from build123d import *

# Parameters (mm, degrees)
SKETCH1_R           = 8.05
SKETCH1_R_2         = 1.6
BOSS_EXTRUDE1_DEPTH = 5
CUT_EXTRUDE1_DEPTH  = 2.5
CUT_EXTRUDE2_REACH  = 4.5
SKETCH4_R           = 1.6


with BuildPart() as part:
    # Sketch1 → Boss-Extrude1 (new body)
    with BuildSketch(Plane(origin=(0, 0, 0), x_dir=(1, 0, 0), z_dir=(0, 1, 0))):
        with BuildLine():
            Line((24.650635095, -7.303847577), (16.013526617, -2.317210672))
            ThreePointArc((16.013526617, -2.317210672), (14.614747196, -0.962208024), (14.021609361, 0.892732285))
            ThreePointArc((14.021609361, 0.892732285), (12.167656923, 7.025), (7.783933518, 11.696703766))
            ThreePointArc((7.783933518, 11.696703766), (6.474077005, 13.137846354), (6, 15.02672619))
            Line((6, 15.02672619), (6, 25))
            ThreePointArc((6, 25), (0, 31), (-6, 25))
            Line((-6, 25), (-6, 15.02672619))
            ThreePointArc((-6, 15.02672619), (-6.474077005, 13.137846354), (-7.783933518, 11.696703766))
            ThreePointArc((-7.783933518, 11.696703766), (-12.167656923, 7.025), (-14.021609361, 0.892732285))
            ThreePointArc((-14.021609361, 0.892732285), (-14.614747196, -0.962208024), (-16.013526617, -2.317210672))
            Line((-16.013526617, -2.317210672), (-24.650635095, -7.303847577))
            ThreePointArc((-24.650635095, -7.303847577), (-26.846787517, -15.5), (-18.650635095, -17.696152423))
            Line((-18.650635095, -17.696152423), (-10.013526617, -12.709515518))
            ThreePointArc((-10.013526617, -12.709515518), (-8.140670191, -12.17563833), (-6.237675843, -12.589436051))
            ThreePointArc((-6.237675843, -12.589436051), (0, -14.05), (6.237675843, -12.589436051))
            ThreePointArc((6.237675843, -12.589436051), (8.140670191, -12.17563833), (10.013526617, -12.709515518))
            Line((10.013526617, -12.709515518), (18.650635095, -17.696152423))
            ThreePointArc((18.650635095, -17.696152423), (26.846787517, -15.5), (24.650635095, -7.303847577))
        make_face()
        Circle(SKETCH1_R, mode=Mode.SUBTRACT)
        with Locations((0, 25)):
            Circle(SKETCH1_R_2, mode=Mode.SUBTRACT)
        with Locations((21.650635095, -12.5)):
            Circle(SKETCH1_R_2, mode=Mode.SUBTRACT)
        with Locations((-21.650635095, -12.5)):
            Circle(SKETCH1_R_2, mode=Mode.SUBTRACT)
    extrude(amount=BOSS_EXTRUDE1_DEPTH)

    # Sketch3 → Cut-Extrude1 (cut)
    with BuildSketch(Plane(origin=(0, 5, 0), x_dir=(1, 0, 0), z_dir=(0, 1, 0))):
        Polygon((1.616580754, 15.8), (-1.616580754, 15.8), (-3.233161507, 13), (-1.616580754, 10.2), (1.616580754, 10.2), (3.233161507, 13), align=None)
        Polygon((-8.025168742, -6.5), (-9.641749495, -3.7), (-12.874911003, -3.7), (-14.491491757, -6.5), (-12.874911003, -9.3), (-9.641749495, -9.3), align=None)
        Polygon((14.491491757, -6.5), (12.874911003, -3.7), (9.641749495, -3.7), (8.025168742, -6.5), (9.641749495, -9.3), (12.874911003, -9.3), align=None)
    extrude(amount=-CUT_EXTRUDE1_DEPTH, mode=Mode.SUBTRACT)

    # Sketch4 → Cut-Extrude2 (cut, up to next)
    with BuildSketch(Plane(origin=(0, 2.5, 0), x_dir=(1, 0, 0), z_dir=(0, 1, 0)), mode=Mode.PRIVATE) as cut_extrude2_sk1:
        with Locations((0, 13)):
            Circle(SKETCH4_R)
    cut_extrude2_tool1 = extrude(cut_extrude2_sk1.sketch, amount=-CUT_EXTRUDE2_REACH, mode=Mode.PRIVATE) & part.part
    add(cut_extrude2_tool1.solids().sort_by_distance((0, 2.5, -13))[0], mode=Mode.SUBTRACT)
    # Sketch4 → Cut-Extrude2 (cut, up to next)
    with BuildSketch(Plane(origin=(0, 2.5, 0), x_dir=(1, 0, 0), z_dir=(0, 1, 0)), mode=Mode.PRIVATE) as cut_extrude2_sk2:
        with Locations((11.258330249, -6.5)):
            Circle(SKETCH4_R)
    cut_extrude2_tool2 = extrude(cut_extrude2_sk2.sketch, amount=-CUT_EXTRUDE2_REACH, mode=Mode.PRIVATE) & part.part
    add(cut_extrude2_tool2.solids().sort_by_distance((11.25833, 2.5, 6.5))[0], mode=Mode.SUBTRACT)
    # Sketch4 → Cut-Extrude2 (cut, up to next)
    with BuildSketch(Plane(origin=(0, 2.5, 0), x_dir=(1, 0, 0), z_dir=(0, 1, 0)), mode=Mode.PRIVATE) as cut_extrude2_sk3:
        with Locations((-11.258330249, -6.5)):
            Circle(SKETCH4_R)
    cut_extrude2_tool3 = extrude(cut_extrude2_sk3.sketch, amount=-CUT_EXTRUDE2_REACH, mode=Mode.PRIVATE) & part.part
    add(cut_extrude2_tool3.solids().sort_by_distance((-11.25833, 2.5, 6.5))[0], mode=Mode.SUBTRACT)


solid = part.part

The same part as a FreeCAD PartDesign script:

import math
import FreeCAD as App
import Part
import Sketcher
from FreeCAD import Vector
Q = App.Units.Quantity

doc = App.newDocument("Part")
body = doc.addObject("PartDesign::Body", "Body")

# Sketch on XZ plane
sketch1 = doc.addObject("Sketcher::SketchObject", "Sketch")
body.addObject(sketch1)
sketch1.AttachmentSupport = (doc.XZ_Plane, [""])
sketch1.MapMode = "FlatFace"
sketch1.addGeometry([
    Part.LineSegment(Vector(24.650635, 7.303848, 0), Vector(16.013527, 2.317211, 0)),  # 0
    Part.ArcOfCircle(Part.Circle(Vector(18.013527, -1.146891, 0), Vector(0, 0, 1), 4), math.radians(120), math.radians(176.356991)),  # 1
    Part.ArcOfCircle(Part.Circle(Vector(0, 0, 0), Vector(0, 0, 1), 14.05), math.radians(-56.356991), math.radians(-3.643009)),  # 2
    Part.ArcOfCircle(Part.Circle(Vector(10, -15.026726, 0), Vector(0, 0, 1), 4), math.radians(123.643009), math.radians(180)),  # 3
    Part.LineSegment(Vector(6, -15.026726, 0), Vector(6, -25, 0)),  # 4
    Part.ArcOfCircle(Part.Circle(Vector(0, -25, 0), Vector(0, 0, 1), 6), math.radians(180), math.radians(360)),  # 5
    Part.LineSegment(Vector(-6, -25, 0), Vector(-6, -15.026726, 0)),  # 6
    Part.ArcOfCircle(Part.Circle(Vector(-10, -15.026726, 0), Vector(0, 0, 1), 4), math.radians(0), math.radians(56.356991)),  # 7
    Part.ArcOfCircle(Part.Circle(Vector(0, 0, 0), Vector(0, 0, 1), 14.05), math.radians(-176.356991), math.radians(-123.643009)),  # 8
    Part.ArcOfCircle(Part.Circle(Vector(-18.013527, -1.146891, 0), Vector(0, 0, 1), 4), math.radians(3.643009), math.radians(60)),  # 9
    Part.LineSegment(Vector(-16.013527, 2.317211, 0), Vector(-24.650635, 7.303848, 0)),  # 10
    Part.ArcOfCircle(Part.Circle(Vector(-21.650635, 12.5, 0), Vector(0, 0, 1), 6), math.radians(60), math.radians(240)),  # 11
    Part.LineSegment(Vector(-18.650635, 17.696152, 0), Vector(-10.013527, 12.709516, 0)),  # 12
    Part.ArcOfCircle(Part.Circle(Vector(-8.013527, 16.173617, 0), Vector(0, 0, 1), 4), math.radians(-120), math.radians(-63.643009)),  # 13
    Part.ArcOfCircle(Part.Circle(Vector(0, 0, 0), Vector(0, 0, 1), 14.05), math.radians(63.643009), math.radians(116.356991)),  # 14
    Part.ArcOfCircle(Part.Circle(Vector(8.013527, 16.173617, 0), Vector(0, 0, 1), 4), math.radians(-116.356991), math.radians(-60)),  # 15
    Part.LineSegment(Vector(10.013527, 12.709516, 0), Vector(18.650635, 17.696152, 0)),  # 16
    Part.ArcOfCircle(Part.Circle(Vector(21.650635, 12.5, 0), Vector(0, 0, 1), 6), math.radians(-60), math.radians(120)),  # 17
    Part.Circle(Vector(-21.650635, 12.5, 0), Vector(0, 0, 1), 1.6),  # 18
    Part.Circle(Vector(21.650635, 12.5, 0), Vector(0, 0, 1), 1.6),  # 19
    Part.Circle(Vector(0, 0, 0), Vector(0, 0, 1), 8.05),  # 20
    Part.Circle(Vector(0, -25, 0), Vector(0, 0, 1), 1.6),  # 21
], False)
sketch1.addConstraint([
    Sketcher.Constraint("Tangent", 0, 2, 1, 1),
    Sketcher.Constraint("Tangent", 1, 2, 2, 2),
    Sketcher.Constraint("Tangent", 2, 1, 3, 1),
    Sketcher.Constraint("Tangent", 3, 2, 4, 1),
    Sketcher.Constraint("Tangent", 4, 2, 5, 2),
    Sketcher.Constraint("Tangent", 5, 1, 6, 1),
    Sketcher.Constraint("Tangent", 6, 2, 7, 1),
    Sketcher.Constraint("Tangent", 7, 2, 8, 2),
    Sketcher.Constraint("Tangent", 8, 1, 9, 1),
    Sketcher.Constraint("Tangent", 9, 2, 10, 1),
    Sketcher.Constraint("Tangent", 10, 2, 11, 2),
    Sketcher.Constraint("Tangent", 11, 1, 12, 1),
    Sketcher.Constraint("Tangent", 12, 2, 13, 1),
    Sketcher.Constraint("Tangent", 13, 2, 14, 2),
    Sketcher.Constraint("Tangent", 14, 1, 15, 1),
    Sketcher.Constraint("Tangent", 15, 2, 16, 1),
    Sketcher.Constraint("Tangent", 16, 2, 17, 2),
    Sketcher.Constraint("Tangent", 17, 1, 0, 1),
    Sketcher.Constraint("Vertical", 4),
    Sketcher.Constraint("Vertical", 6),
    Sketcher.Constraint("Coincident", 2, 3, -1, 1),
    Sketcher.Constraint("Coincident", 8, 3, -1, 1),
    Sketcher.Constraint("Coincident", 14, 3, -1, 1),
    Sketcher.Constraint("Coincident", 20, 3, -1, 1),
    Sketcher.Constraint("Coincident", 18, 3, 11, 3),
    Sketcher.Constraint("Coincident", 19, 3, 17, 3),
    Sketcher.Constraint("Coincident", 21, 3, 5, 3),
    Sketcher.Constraint("Equal", 1, 3),
    Sketcher.Constraint("Equal", 3, 7),
    Sketcher.Constraint("Equal", 2, 8),
    Sketcher.Constraint("Equal", 7, 9),
    Sketcher.Constraint("Equal", 5, 11),
    Sketcher.Constraint("Equal", 9, 13),
    Sketcher.Constraint("Equal", 8, 14),
    Sketcher.Constraint("Equal", 13, 15),
    Sketcher.Constraint("Equal", 11, 17),
    Sketcher.Constraint("Equal", 18, 19),
    Sketcher.Constraint("Equal", 19, 21),
    Sketcher.Constraint("Symmetric", 11, 3, 17, 3, -2),
    Sketcher.Constraint("PointOnObject", 5, 3, -2),
    Sketcher.Constraint("Parallel", 10, 12),
    Sketcher.Constraint("Parallel", 0, 16),
    Sketcher.Constraint("Horizontal", 1, 3, 9, 3),
    Sketcher.Constraint("Equal", 10, 12),
    Sketcher.Constraint("Radius", 1, 4.0),
    Sketcher.Constraint("Radius", 5, 6.0),
    Sketcher.Constraint("Diameter", 18, 3.2),
    Sketcher.Constraint("Diameter", 20, 16.1),
    Sketcher.Constraint("Angle", 0, Q("-150 deg")),
    Sketcher.Constraint("Radius", 2, 14.05),
    Sketcher.Constraint("DistanceY", 5, 3, -1, 1, 25.0),
    Sketcher.Constraint("DistanceY", -1, 1, 11, 3, 12.5),
])
pad1 = doc.addObject("PartDesign::Pad", "Pad")
body.addObject(pad1)
pad1.Profile = sketch1
pad1.Length = 5
pad1.Reversed = True

# Sketch on XZ plane
sketch2 = doc.addObject("Sketcher::SketchObject", "Sketch001")
body.addObject(sketch2)
sketch2.AttachmentSupport = (doc.XZ_Plane, [""])
sketch2.MapMode = "FlatFace"
sketch2.AttachmentOffset = App.Placement(Vector(0, 0, -5), App.Rotation())
sketch2.addGeometry([
    Part.LineSegment(Vector(1.616581, -15.8, 0), Vector(-1.616581, -15.8, 0)),  # 0
    Part.LineSegment(Vector(-1.616581, -15.8, 0), Vector(-3.233162, -13, 0)),  # 1
    Part.LineSegment(Vector(-3.233162, -13, 0), Vector(-1.616581, -10.2, 0)),  # 2
    Part.LineSegment(Vector(-1.616581, -10.2, 0), Vector(1.616581, -10.2, 0)),  # 3
    Part.LineSegment(Vector(1.616581, -10.2, 0), Vector(3.233162, -13, 0)),  # 4
    Part.LineSegment(Vector(3.233162, -13, 0), Vector(1.616581, -15.8, 0)),  # 5
    Part.LineSegment(Vector(-8.025169, 6.5, 0), Vector(-9.641749, 3.7, 0)),  # 6
    Part.LineSegment(Vector(-9.641749, 3.7, 0), Vector(-12.874911, 3.7, 0)),  # 7
    Part.LineSegment(Vector(-12.874911, 3.7, 0), Vector(-14.491492, 6.5, 0)),  # 8
    Part.LineSegment(Vector(-14.491492, 6.5, 0), Vector(-12.874911, 9.3, 0)),  # 9
    Part.LineSegment(Vector(-12.874911, 9.3, 0), Vector(-9.641749, 9.3, 0)),  # 10
    Part.LineSegment(Vector(-9.641749, 9.3, 0), Vector(-8.025169, 6.5, 0)),  # 11
    Part.LineSegment(Vector(14.491492, 6.5, 0), Vector(12.874911, 3.7, 0)),  # 12
    Part.LineSegment(Vector(12.874911, 3.7, 0), Vector(9.641749, 3.7, 0)),  # 13
    Part.LineSegment(Vector(9.641749, 3.7, 0), Vector(8.025169, 6.5, 0)),  # 14
    Part.LineSegment(Vector(8.025169, 6.5, 0), Vector(9.641749, 9.3, 0)),  # 15
    Part.LineSegment(Vector(9.641749, 9.3, 0), Vector(12.874911, 9.3, 0)),  # 16
    Part.LineSegment(Vector(12.874911, 9.3, 0), Vector(14.491492, 6.5, 0)),  # 17
], False)
sketch2.addConstraint([
    Sketcher.Constraint("Coincident", 0, 2, 1, 1),
    Sketcher.Constraint("Coincident", 1, 2, 2, 1),
    Sketcher.Constraint("Coincident", 2, 2, 3, 1),
    Sketcher.Constraint("Coincident", 3, 2, 4, 1),
    Sketcher.Constraint("Coincident", 4, 2, 5, 1),
    Sketcher.Constraint("Coincident", 5, 2, 0, 1),
    Sketcher.Constraint("Coincident", 6, 2, 7, 1),
    Sketcher.Constraint("Coincident", 7, 2, 8, 1),
    Sketcher.Constraint("Coincident", 8, 2, 9, 1),
    Sketcher.Constraint("Coincident", 9, 2, 10, 1),
    Sketcher.Constraint("Coincident", 10, 2, 11, 1),
    Sketcher.Constraint("Coincident", 11, 2, 6, 1),
    Sketcher.Constraint("Coincident", 12, 2, 13, 1),
    Sketcher.Constraint("Coincident", 13, 2, 14, 1),
    Sketcher.Constraint("Coincident", 14, 2, 15, 1),
    Sketcher.Constraint("Coincident", 15, 2, 16, 1),
    Sketcher.Constraint("Coincident", 16, 2, 17, 1),
    Sketcher.Constraint("Coincident", 17, 2, 12, 1),
    Sketcher.Constraint("Horizontal", 0),
    Sketcher.Constraint("Horizontal", 3),
    Sketcher.Constraint("Horizontal", 7),
    Sketcher.Constraint("Horizontal", 10),
    Sketcher.Constraint("Horizontal", 13),
    Sketcher.Constraint("Horizontal", 16),
    Sketcher.Constraint("Symmetric", 1, 2, 4, 2, -2),
    Sketcher.Constraint("Symmetric", 7, 2, 12, 2, -2),
    Sketcher.Constraint("Symmetric", 11, 2, 14, 2, -2),
    Sketcher.Constraint("Symmetric", 10, 2, 15, 2, -2),
    Sketcher.Constraint("Symmetric", 8, 2, 17, 2, -2),
    Sketcher.Constraint("Parallel", 1, 4),
    Sketcher.Constraint("Parallel", 2, 5),
    Sketcher.Constraint("Parallel", 5, 6),
    Sketcher.Constraint("Parallel", 4, 8),
    Sketcher.Constraint("Parallel", 6, 9),
    Sketcher.Constraint("Parallel", 8, 11),
    Sketcher.Constraint("Parallel", 9, 12),
    Sketcher.Constraint("Parallel", 11, 14),
    Sketcher.Constraint("Parallel", 14, 17),
    Sketcher.Constraint("Horizontal", 8, 2, 11, 2),
    Sketcher.Constraint("Vertical", 0, 2, 2, 2),
    Sketcher.Constraint("Vertical", 7, 2, 9, 2),
    Sketcher.Constraint("Equal", 3, 7),
    Sketcher.Constraint("Equal", 5, 6),
    Sketcher.Constraint("Angle", 1, Q("120 deg")),
    Sketcher.Constraint("DistanceY", 1, 2, -1, 1, 13.0),
    Sketcher.Constraint("DistanceY", 0, 2, -1, 1, 15.8),
    Sketcher.Constraint("DistanceY", -1, 1, 6, 2, 3.7),
    Sketcher.Constraint("DistanceX", 0, 2, 0, 1, 3.233162),
    Sketcher.Constraint("DistanceX", 10, 2, 15, 2, 19.283499),
])
pocket1 = doc.addObject("PartDesign::Pocket", "Pocket")
body.addObject(pocket1)
pocket1.Profile = sketch2
pocket1.Length = 2.5
pocket1.Reversed = True

# Sketch on XZ plane
sketch3 = doc.addObject("Sketcher::SketchObject", "Sketch002")
body.addObject(sketch3)
sketch3.AttachmentSupport = (doc.XZ_Plane, [""])
sketch3.MapMode = "FlatFace"
sketch3.AttachmentOffset = App.Placement(Vector(0, 0, -2.5), App.Rotation())
sketch3.addGeometry(Part.Circle(Vector(0, -13, 0), Vector(0, 0, 1), 1.6), False)
sketch3.addConstraint([
    Sketcher.Constraint("PointOnObject", 0, 3, -2),
    Sketcher.Constraint("Diameter", 0, 3.2),
    Sketcher.Constraint("DistanceY", 0, 3, -1, 1, 13.0),
])
pocket2 = doc.addObject("PartDesign::Pocket", "Pocket001")
body.addObject(pocket2)
pocket2.Profile = sketch3
pocket2.Type = "UpToFirst"
pocket2.Reversed = True

# Sketch on XZ plane
sketch4 = doc.addObject("Sketcher::SketchObject", "Sketch003")
body.addObject(sketch4)
sketch4.AttachmentSupport = (doc.XZ_Plane, [""])
sketch4.MapMode = "FlatFace"
sketch4.AttachmentOffset = App.Placement(Vector(0, 0, -2.5), App.Rotation())
sketch4.addGeometry(Part.Circle(Vector(11.25833, 6.5, 0), Vector(0, 0, 1), 1.6), False)
sketch4.addConstraint([
    Sketcher.Constraint("Diameter", 0, 3.2),
    Sketcher.Constraint("DistanceY", -1, 1, 0, 3, 6.5),
    Sketcher.Constraint("DistanceX", -1, 1, 0, 3, 11.25833),
])
pocket3 = doc.addObject("PartDesign::Pocket", "Pocket002")
body.addObject(pocket3)
pocket3.Profile = sketch4
pocket3.Type = "UpToFirst"
pocket3.Reversed = True

# Sketch on XZ plane
sketch5 = doc.addObject("Sketcher::SketchObject", "Sketch004")
body.addObject(sketch5)
sketch5.AttachmentSupport = (doc.XZ_Plane, [""])
sketch5.MapMode = "FlatFace"
sketch5.AttachmentOffset = App.Placement(Vector(0, 0, -2.5), App.Rotation())
sketch5.addGeometry(Part.Circle(Vector(-11.25833, 6.5, 0), Vector(0, 0, 1), 1.6), False)
sketch5.addConstraint([
    Sketcher.Constraint("Diameter", 0, 3.2),
    Sketcher.Constraint("DistanceY", -1, 1, 0, 3, 6.5),
    Sketcher.Constraint("DistanceX", 0, 3, -1, 1, 11.25833),
])
pocket4 = doc.addObject("PartDesign::Pocket", "Pocket003")
body.addObject(pocket4)
pocket4.Profile = sketch5
pocket4.Type = "UpToFirst"
pocket4.Reversed = True

doc.recompute()
